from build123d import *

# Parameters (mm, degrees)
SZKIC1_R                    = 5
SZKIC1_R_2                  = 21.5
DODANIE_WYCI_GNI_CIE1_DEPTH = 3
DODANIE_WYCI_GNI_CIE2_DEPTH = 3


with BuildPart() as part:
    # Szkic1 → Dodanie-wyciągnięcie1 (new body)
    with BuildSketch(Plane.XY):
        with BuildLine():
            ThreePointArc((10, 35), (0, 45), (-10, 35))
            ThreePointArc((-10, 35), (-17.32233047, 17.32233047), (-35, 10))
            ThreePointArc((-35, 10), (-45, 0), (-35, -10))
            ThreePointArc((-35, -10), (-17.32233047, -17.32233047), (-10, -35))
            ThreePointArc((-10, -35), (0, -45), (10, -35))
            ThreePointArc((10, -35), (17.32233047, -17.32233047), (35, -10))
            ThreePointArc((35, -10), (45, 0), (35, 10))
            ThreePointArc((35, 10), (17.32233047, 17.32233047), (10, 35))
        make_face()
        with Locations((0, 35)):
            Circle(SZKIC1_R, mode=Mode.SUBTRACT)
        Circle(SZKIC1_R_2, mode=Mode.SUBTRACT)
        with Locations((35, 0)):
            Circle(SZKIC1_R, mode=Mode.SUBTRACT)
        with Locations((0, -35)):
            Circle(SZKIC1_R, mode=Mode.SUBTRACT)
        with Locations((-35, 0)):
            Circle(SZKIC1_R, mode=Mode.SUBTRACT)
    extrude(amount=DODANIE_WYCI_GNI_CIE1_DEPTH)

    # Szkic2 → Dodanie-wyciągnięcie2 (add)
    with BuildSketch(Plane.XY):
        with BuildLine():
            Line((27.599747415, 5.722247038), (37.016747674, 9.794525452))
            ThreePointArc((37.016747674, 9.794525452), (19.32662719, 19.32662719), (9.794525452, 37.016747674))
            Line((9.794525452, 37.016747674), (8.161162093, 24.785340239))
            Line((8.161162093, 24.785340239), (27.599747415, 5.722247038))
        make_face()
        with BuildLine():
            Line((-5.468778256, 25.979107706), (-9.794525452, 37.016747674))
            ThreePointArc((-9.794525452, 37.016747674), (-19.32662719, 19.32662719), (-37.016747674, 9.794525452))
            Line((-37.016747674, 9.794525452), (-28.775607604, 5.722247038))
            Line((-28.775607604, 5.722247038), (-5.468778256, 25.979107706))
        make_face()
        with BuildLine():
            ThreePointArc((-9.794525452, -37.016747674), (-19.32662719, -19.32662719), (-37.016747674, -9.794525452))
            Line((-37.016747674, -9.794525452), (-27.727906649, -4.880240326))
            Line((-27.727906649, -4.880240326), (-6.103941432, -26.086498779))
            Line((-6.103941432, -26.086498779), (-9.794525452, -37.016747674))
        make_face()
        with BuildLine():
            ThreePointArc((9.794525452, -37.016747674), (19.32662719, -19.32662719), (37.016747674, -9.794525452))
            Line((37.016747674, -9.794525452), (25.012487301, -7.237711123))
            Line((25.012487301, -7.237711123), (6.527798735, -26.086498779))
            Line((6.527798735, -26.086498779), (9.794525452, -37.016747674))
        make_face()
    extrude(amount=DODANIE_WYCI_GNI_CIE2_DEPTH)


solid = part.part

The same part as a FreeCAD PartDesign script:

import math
import FreeCAD as App
import Part
import Sketcher
Q = App.Units.Quantity

doc = App.newDocument("Part")
body = doc.addObject("PartDesign::Body", "Body")

# Sketch on XY plane
sketch1 = doc.addObject("Sketcher::SketchObject", "Sketch")
body.addObject(sketch1)
sketch1.AttachmentSupport = (doc.XY_Plane, [""])
sketch1.MapMode = "FlatFace"
sketch1.addGeometry([
    Part.ArcOfCircle(Part.Circle(App.Vector(0, 35, 0), App.Vector(0, 0, 1), 10), math.radians(0), math.radians(180)),  # 0
    Part.ArcOfCircle(Part.Circle(App.Vector(-35, 35, 0), App.Vector(0, 0, 1), 25), math.radians(-90), math.radians(0)),  # 1
    Part.ArcOfCircle(Part.Circle(App.Vector(-35, 0, 0), App.Vector(0, 0, 1), 10), math.radians(90), math.radians(270)),  # 2
    Part.ArcOfCircle(Part.Circle(App.Vector(-35, -35, 0), App.Vector(0, 0, 1), 25), math.radians(0), math.radians(90)),  # 3
    Part.ArcOfCircle(Part.Circle(App.Vector(0, -35, 0), App.Vector(0, 0, 1), 10), math.radians(180), math.radians(360)),  # 4
    Part.ArcOfCircle(Part.Circle(App.Vector(35, -35, 0), App.Vector(0, 0, 1), 25), math.radians(90), math.radians(180)),  # 5
    Part.ArcOfCircle(Part.Circle(App.Vector(35, 0, 0), App.Vector(0, 0, 1), 10), math.radians(-90), math.radians(90)),  # 6
    Part.ArcOfCircle(Part.Circle(App.Vector(35, 35, 0), App.Vector(0, 0, 1), 25), math.radians(180), math.radians(270)),  # 7
    Part.Circle(App.Vector(0, -35, 0), App.Vector(0, 0, 1), 5),  # 8
    Part.Circle(App.Vector(-35, 0, 0), App.Vector(0, 0, 1), 5),  # 9
    Part.Circle(App.Vector(0, 0, 0), App.Vector(0, 0, 1), 21.5),  # 10
    Part.Circle(App.Vector(35, 0, 0), App.Vector(0, 0, 1), 5),  # 11
    Part.Circle(App.Vector(0, 35, 0), App.Vector(0, 0, 1), 5),  # 12
], False)
sketch1.addConstraint([
    Sketcher.Constraint("Tangent", 0, 2, 1, 2),
    Sketcher.Constraint("Tangent", 1, 1, 2, 1),
    Sketcher.Constraint("Tangent", 2, 2, 3, 2),
    Sketcher.Constraint("Tangent", 3, 1, 4, 1),
    Sketcher.Constraint("Tangent", 4, 2, 5, 2),
    Sketcher.Constraint("Tangent", 5, 1, 6, 1),
    Sketcher.Constraint("Tangent", 6, 2, 7, 2),
    Sketcher.Constraint("Tangent", 7, 1, 0, 1),
    Sketcher.Constraint("Coincident", 10, 3, -1, 1),
    Sketcher.Constraint("Coincident", 8, 3, 4, 3),
    Sketcher.Constraint("Coincident", 9, 3, 2, 3),
    Sketcher.Constraint("Coincident", 11, 3, 6, 3),
    Sketcher.Constraint("Coincident", 12, 3, 0, 3),
    Sketcher.Constraint("Equal", 0, 2),
    Sketcher.Constraint("Equal", 1, 3),
    Sketcher.Constraint("Equal", 2, 4),
    Sketcher.Constraint("Equal", 3, 5),
    Sketcher.Constraint("Equal", 4, 6),
    Sketcher.Constraint("Equal", 5, 7),
    Sketcher.Constraint("Equal", 8, 9),
    Sketcher.Constraint("Equal", 9, 11),
    Sketcher.Constraint("Equal", 11, 12),
    Sketcher.Constraint("Symmetric", 0, 3, 4, 3, -1, 1),
    Sketcher.Constraint("Symmetric", 2, 3, 6, 3, -1, 1),
    Sketcher.Constraint("Symmetric", 3, 3, 5, 3, -2),
    Sketcher.Constraint("Horizontal", 0, 3, 1, 3),
    Sketcher.Constraint("Vertical", 1, 3, 2, 3),
    Sketcher.Constraint("Diameter", 8, Q("10 mm")),
    Sketcher.Constraint("Diameter", 10, Q("43 mm")),
    Sketcher.Constraint("Radius", 0, Q("10 mm")),
    Sketcher.Constraint("Radius", 1, Q("25 mm")),
])
pad1 = doc.addObject("PartDesign::Pad", "Pad")
body.addObject(pad1)
pad1.Profile = sketch1
pad1.Length = 3

# Sketch on XY plane
sketch2 = doc.addObject("Sketcher::SketchObject", "Sketch001")
body.addObject(sketch2)
sketch2.AttachmentSupport = (doc.XY_Plane, [""])
sketch2.MapMode = "FlatFace"
sketch2.addGeometry([
    Part.LineSegment(App.Vector(27.599747, 5.722247, 0), App.Vector(37.016748, 9.794525, 0)),  # 0
    Part.ArcOfCircle(Part.Circle(App.Vector(44.075365, 44.075365, 0), App.Vector(0, 0, 1), 35), math.radians(-168.365088), math.radians(-101.634912)),  # 1
    Part.LineSegment(App.Vector(9.794525, 37.016748, 0), App.Vector(8.161162, 24.78534, 0)),  # 2
    Part.LineSegment(App.Vector(8.161162, 24.78534, 0), App.Vector(27.599747, 5.722247, 0)),  # 3
    Part.LineSegment(App.Vector(-5.468778, 25.979108, 0), App.Vector(-9.794525, 37.016748, 0)),  # 4
    Part.ArcOfCircle(Part.Circle(App.Vector(-44.075365, 44.075365, 0), App.Vector(0, 0, 1), 35), math.radians(-78.365088), math.radians(-11.634912)),  # 5
    Part.LineSegment(App.Vector(-37.016748, 9.794525, 0), App.Vector(-28.775608, 5.722247, 0)),  # 6
    Part.LineSegment(App.Vector(-28.775608, 5.722247, 0), App.Vector(-5.468778, 25.979108, 0)),  # 7
    Part.ArcOfCircle(Part.Circle(App.Vector(-44.075365, -44.075365, 0), App.Vector(0, 0, 1), 35), math.radians(11.634912), math.radians(78.365088)),  # 8
    Part.LineSegment(App.Vector(-9.794525, -37.016748, 0), App.Vector(-6.103941, -26.086499, 0)),  # 9
    Part.LineSegment(App.Vector(-6.103941, -26.086499, 0), App.Vector(-27.727907, -4.88024, 0)),  # 10
    Part.LineSegment(App.Vector(-27.727907, -4.88024, 0), App.Vector(-37.016748, -9.794525, 0)),  # 11
    Part.ArcOfCircle(Part.Circle(App.Vector(44.075365, -44.075365, 0), App.Vector(0, 0, 1), 35), math.radians(101.634912), math.radians(168.365088)),  # 12
    Part.LineSegment(App.Vector(37.016748, -9.794525, 0), App.Vector(25.012487, -7.237711, 0)),  # 13
    Part.LineSegment(App.Vector(25.012487, -7.237711, 0), App.Vector(6.527799, -26.086499, 0)),  # 14
    Part.LineSegment(App.Vector(6.527799, -26.086499, 0), App.Vector(9.794525, -37.016748, 0)),  # 15
], False)
sketch2.addConstraint([
    Sketcher.Constraint("Coincident", 0, 2, 1, 2),
    Sketcher.Constraint("Coincident", 1, 1, 2, 1),
    Sketcher.Constraint("Coincident", 2, 2, 3, 1),
    Sketcher.Constraint("Coincident", 3, 2, 0, 1),
    Sketcher.Constraint("Coincident", 4, 2, 5, 2),
    Sketcher.Constraint("Coincident", 5, 1, 6, 1),
    Sketcher.Constraint("Coincident", 6, 2, 7, 1),
    Sketcher.Constraint("Coincident", 7, 2, 4, 1),
    Sketcher.Constraint("Coincident", 8, 1, 9, 1),
    Sketcher.Constraint("Coincident", 9, 2, 10, 1),
    Sketcher.Constraint("Coincident", 10, 2, 11, 1),
    Sketcher.Constraint("Coincident", 11, 2, 8, 2),
    Sketcher.Constraint("Coincident", 12, 1, 13, 1),
    Sketcher.Constraint("Coincident", 13, 2, 14, 1),
    Sketcher.Constraint("Coincident", 14, 2, 15, 1),
    Sketcher.Constraint("Coincident", 15, 2, 12, 2),
    Sketcher.Constraint("Equal", 1, 5),
    Sketcher.Constraint("Equal", 5, 8),
    Sketcher.Constraint("Equal", 8, 12),
    Sketcher.Constraint("Symmetric", 1, 3, 8, 3, -1, 1),
    Sketcher.Constraint("Symmetric", 5, 3, 12, 3, -1, 1),
    Sketcher.Constraint("Symmetric", 1, 3, 5, 3, -2),
    Sketcher.Constraint("Parallel", 3, 10),
    Sketcher.Constraint("Perpendicular", 10, 14),
    Sketcher.Constraint("Horizontal", 1, 1, 4, 2),
    Sketcher.Constraint("Horizontal", 0, 2, 5, 1),
    Sketcher.Constraint("Horizontal", 3, 2, 6, 2),
    Sketcher.Constraint("Horizontal", 11, 2, 12, 1),
    Sketcher.Constraint("Horizontal", 9, 2, 14, 2),
    Sketcher.Constraint("Horizontal", 8, 1, 15, 2),
    Sketcher.Constraint("Vertical", 4, 2, 8, 1),
    Sketcher.Constraint("Vertical", 5, 1, 11, 2),
    Sketcher.Constraint("Radius", 1, Q("35 mm")),
    Sketcher.Constraint("DistanceX", 3, 2, 0, 2, Q("9.417 mm")),
    Sketcher.Constraint("Distance", 11, Q("10.5087 mm")),
    Sketcher.Constraint("DistanceY", 9, 2, -1, 1, Q("26.086499 mm")),
    Sketcher.Constraint("DistanceX", -1, 1, 14, 2, Q("6.527799 mm")),
    Sketcher.Constraint("DistanceY", 3, 2, 1, 1, Q("31.294501 mm")),
    Sketcher.Constraint("DistanceX", 6, 2, 10, 2, Q("1.047701 mm")),
    Sketcher.Constraint("Distance", 6, Q("9.19238 mm")),
    Sketcher.Constraint("Distance", 10, Q("30.286982 mm")),
    Sketcher.Constraint("Distance", 13, Q("12.273531 mm")),
    Sketcher.Constraint("Distance", 14, Q("26.40001 mm")),
    Sketcher.Constraint("DistanceY", -1, 1, 2, 2, Q("24.78534 mm")),
    Sketcher.Constraint("DistanceX", 7, 2, -1, 1, Q("5.468778 mm")),
    Sketcher.Constraint("DistanceX", 9, 2, -1, 1, Q("6.103941 mm")),
    Sketcher.Constraint("DistanceY", 10, 2, -1, 1, Q("4.88024 mm")),
    Sketcher.Constraint("DistanceX", 5, 3, 1, 3, Q("88.150729 mm")),
    Sketcher.Constraint("DistanceY", 7, 2, 4, 2, Q("11.03764 mm")),
])
pad2 = doc.addObject("PartDesign::Pad", "Pad001")
body.addObject(pad2)
pad2.Profile = sketch2
pad2.Length = 3

doc.recompute()
